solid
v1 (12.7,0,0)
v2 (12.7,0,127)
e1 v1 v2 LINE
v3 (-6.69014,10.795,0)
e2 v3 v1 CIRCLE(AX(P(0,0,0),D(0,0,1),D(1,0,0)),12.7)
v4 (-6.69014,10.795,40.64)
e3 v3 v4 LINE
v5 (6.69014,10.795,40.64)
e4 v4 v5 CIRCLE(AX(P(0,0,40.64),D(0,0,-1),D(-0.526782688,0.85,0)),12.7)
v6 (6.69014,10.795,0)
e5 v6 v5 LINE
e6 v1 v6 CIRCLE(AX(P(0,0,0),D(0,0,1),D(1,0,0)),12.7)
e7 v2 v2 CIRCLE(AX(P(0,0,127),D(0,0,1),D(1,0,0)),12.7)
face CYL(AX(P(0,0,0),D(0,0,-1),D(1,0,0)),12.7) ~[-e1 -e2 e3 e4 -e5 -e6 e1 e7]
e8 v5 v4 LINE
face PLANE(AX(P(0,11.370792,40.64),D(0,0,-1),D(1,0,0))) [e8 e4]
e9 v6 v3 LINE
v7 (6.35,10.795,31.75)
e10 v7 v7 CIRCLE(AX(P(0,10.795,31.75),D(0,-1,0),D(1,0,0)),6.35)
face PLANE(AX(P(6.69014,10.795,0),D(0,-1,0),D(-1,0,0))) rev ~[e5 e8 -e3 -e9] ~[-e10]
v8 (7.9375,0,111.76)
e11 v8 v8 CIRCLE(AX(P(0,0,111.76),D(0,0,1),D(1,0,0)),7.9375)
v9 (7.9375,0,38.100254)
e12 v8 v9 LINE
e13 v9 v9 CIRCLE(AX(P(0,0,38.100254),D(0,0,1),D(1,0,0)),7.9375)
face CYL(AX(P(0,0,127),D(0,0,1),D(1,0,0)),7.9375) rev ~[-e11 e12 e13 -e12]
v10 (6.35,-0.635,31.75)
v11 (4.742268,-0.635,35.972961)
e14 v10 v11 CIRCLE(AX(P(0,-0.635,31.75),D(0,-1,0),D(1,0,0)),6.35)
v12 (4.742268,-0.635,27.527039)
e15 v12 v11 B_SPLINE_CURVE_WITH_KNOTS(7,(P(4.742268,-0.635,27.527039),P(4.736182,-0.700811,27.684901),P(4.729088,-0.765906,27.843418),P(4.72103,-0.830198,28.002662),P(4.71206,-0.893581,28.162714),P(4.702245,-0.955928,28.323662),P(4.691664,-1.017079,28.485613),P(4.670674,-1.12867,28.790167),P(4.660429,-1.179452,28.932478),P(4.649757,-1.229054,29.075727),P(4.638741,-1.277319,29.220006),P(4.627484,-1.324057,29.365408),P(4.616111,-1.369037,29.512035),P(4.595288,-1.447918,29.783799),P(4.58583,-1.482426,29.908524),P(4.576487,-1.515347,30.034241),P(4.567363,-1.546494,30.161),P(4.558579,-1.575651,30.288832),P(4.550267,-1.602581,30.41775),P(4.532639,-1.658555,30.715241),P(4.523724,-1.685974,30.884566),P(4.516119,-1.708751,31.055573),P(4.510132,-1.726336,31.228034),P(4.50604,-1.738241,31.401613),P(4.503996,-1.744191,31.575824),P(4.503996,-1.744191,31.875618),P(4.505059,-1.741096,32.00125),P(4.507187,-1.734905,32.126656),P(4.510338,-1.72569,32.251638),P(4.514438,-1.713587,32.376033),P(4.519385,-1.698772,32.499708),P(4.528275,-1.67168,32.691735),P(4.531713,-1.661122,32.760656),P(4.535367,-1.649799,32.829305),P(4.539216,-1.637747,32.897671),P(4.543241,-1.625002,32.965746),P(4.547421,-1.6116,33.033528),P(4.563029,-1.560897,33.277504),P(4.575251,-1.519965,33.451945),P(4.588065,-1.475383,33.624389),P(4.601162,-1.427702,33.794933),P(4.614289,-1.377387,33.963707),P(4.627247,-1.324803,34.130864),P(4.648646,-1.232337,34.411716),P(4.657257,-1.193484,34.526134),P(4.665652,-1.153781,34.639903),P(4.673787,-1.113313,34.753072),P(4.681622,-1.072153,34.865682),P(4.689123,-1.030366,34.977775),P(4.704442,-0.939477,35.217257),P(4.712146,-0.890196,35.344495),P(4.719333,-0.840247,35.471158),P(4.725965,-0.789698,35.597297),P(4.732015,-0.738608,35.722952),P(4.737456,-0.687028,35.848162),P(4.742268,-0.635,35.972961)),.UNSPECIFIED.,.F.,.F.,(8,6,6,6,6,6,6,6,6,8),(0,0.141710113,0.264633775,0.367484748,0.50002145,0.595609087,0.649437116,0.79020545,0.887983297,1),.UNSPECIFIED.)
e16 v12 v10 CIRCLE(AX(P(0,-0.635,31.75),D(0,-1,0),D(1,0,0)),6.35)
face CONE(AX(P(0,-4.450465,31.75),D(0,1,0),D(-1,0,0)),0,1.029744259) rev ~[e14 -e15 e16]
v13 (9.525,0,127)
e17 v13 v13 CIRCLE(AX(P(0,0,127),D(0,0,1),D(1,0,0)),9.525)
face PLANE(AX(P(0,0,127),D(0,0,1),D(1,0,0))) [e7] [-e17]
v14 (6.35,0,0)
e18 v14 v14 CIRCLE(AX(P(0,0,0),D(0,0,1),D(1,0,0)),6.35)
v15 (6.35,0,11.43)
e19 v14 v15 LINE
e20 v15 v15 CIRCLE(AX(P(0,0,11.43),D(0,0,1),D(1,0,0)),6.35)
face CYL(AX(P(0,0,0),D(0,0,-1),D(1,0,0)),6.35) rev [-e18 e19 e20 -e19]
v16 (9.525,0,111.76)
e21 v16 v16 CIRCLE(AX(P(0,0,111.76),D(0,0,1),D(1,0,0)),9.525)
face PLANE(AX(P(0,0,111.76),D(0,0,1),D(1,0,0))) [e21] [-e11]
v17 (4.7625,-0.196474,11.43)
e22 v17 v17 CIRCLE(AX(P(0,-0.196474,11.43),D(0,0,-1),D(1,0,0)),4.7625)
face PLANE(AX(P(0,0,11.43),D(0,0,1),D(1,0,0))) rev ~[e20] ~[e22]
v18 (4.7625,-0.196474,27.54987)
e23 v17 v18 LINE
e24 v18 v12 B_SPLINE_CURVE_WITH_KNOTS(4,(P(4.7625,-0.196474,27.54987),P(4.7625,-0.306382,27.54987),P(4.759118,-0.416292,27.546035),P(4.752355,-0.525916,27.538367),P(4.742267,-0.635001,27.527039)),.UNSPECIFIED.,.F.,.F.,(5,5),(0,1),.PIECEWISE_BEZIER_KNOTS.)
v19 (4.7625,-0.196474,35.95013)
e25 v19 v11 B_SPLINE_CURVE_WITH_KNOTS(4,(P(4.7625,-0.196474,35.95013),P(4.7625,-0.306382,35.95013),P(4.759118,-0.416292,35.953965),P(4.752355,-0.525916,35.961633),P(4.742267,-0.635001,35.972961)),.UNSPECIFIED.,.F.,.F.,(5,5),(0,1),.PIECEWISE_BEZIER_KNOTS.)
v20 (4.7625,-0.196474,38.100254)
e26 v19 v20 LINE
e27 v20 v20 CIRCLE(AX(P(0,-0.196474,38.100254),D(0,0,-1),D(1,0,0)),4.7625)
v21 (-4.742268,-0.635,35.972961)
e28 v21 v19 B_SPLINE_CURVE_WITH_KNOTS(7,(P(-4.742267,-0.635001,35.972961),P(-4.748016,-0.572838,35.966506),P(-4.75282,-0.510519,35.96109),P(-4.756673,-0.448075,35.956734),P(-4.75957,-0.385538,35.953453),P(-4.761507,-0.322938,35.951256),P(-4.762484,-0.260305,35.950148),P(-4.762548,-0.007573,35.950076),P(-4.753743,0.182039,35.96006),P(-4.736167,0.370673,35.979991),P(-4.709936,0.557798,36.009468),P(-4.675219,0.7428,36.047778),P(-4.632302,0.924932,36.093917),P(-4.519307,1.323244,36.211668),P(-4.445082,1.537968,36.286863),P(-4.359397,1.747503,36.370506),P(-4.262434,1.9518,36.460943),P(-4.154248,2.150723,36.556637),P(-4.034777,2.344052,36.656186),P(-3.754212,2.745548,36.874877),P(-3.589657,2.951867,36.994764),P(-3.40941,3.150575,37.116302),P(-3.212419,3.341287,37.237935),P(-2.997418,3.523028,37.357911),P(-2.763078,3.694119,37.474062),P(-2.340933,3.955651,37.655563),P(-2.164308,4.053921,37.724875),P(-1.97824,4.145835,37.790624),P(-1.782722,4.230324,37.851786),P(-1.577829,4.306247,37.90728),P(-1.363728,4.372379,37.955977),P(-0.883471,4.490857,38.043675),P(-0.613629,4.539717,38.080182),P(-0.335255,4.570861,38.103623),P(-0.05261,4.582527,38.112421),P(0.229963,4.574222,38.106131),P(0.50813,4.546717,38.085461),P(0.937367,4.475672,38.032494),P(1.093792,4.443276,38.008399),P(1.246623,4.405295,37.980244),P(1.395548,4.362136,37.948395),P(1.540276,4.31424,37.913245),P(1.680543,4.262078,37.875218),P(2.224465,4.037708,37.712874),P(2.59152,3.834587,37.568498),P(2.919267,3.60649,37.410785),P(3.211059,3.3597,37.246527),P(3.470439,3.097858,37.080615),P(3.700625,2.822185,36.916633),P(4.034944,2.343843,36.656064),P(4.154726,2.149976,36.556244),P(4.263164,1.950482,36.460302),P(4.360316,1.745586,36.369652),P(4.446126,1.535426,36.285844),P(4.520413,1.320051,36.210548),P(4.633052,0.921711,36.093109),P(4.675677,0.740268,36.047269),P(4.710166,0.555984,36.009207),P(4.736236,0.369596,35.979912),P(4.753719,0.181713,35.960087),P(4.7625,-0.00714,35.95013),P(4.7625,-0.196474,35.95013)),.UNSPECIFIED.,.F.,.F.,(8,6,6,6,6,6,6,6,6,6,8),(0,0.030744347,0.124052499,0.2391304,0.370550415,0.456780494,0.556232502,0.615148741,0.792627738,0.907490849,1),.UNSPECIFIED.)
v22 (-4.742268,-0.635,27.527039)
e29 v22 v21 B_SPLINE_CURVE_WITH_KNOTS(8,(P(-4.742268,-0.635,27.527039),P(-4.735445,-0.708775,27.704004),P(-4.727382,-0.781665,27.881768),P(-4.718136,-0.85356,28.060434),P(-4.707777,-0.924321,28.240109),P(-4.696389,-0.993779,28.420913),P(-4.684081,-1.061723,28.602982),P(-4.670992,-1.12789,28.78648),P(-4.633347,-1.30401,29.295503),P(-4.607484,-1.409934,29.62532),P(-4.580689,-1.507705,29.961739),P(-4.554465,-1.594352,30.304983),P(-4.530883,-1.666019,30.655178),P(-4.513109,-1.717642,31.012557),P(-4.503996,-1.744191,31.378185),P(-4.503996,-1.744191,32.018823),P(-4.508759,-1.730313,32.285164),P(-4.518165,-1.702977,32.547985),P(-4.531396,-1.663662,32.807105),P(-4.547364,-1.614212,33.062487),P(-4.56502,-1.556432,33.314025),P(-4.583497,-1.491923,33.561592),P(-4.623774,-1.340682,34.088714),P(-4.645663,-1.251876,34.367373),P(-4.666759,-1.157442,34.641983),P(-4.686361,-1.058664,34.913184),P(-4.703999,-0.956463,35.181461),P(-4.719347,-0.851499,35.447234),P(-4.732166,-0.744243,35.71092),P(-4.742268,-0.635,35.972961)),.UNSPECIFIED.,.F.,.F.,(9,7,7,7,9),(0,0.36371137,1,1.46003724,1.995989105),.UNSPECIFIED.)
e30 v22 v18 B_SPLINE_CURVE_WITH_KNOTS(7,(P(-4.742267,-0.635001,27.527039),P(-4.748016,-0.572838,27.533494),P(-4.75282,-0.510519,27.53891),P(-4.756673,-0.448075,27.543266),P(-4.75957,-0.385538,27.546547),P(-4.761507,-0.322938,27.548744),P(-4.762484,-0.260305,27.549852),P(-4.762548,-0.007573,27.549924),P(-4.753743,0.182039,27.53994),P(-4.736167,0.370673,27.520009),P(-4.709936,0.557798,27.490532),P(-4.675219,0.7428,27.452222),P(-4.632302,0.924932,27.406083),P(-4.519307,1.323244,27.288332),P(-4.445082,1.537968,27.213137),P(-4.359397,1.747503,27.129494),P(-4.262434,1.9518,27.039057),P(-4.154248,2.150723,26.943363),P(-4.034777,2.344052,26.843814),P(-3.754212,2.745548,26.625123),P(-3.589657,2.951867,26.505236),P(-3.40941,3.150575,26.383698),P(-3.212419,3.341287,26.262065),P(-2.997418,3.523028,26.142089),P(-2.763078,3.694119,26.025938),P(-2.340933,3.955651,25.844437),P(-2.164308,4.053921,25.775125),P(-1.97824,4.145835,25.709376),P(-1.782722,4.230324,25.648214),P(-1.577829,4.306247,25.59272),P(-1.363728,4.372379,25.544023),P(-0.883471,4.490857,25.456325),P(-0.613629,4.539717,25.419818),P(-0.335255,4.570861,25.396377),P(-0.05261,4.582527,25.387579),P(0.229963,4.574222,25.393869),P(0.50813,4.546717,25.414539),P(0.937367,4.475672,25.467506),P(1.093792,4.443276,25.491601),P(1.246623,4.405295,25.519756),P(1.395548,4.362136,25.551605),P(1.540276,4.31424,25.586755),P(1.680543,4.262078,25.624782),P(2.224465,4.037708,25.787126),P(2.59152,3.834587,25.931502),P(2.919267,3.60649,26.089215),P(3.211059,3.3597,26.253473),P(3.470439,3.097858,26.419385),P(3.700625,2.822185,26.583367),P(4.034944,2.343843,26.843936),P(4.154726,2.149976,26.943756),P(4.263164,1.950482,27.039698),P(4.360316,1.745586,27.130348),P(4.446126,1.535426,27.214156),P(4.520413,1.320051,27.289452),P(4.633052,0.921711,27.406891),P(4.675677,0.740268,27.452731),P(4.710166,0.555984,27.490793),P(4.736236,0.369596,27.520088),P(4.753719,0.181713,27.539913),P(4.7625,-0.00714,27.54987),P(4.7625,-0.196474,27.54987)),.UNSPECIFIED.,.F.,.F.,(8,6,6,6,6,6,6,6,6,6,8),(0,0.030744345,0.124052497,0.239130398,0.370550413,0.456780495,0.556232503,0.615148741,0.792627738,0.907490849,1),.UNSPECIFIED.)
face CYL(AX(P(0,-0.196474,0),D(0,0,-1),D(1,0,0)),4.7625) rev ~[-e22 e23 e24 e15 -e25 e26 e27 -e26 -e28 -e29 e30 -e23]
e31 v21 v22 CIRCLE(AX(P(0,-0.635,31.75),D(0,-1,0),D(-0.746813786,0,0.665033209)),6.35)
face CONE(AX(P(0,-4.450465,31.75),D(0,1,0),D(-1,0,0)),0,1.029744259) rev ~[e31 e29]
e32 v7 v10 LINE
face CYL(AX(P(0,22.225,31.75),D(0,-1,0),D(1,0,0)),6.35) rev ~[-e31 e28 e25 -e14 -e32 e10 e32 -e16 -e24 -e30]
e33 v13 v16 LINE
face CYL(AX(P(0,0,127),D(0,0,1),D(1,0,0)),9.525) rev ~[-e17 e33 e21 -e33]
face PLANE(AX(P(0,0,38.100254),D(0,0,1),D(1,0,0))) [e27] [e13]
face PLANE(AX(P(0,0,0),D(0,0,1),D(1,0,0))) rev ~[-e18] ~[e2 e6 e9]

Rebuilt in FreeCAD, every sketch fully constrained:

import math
import FreeCAD as App
import Part
import Sketcher
from FreeCAD import Vector
Q = App.Units.Quantity

doc = App.newDocument("Part")
params = doc.addObject("Spreadsheet::Sheet", "Params")
for row, (alias, value) in enumerate([
    ("sketch1_diameter", "1 in"),
    ("pad1_length", "5 in"),
    ("sketch2_diameter", "0.625 in"),
    ("pocket1_length", "88.899746 mm"),
    ("sketch3_radius", "0.5 in"),
    ("pocket2_length", "1.6 in"),
    ("sketch4_diameter", "0.75 in"),
    ("pocket3_length", "0.6 in"),
    ("sketch5_diameter", "0.5 in"),
    ("hole_diameter", "0.5 in"),
    ("hole_depth", "0.45 in"),
    ("sketch6_diameter", "0.375 in"),
    ("pocket4_length", "2 in"),
    ("sketch7_diameter", "0.5 in"),
    ("pocket5_length", "0.45 in"),
], start=1):
    params.set(f"A{row}", alias)
    params.set(f"B{row}", "=" + value)
    params.setAlias(f"B{row}", alias)

body = doc.addObject("PartDesign::Body", "Body")

# Sketch on XY plane
sketch1 = body.newObject("Sketcher::SketchObject", "Sketch")
sketch1.AttachmentSupport = (doc.getObject("XY_Plane"), [""])
sketch1.MapMode = "FlatFace"
sketch1.addGeometry(Part.Circle(Vector(0, 0, 0), Vector(0, 0, 1), 12.7), False)
sketch1.addConstraint(Sketcher.Constraint("Coincident", 0, 3, -1, 1))
sketch1.addConstraint(Sketcher.Constraint("Diameter", 0, Q("1 in")))
sketch1.setExpression("Constraints[1]", "Params.sketch1_diameter")
pad1 = body.newObject("PartDesign::Pad", "Pad")
pad1.Profile = sketch1
pad1.setExpression("Length", "Params.pad1_length")

# Sketch on XY plane
sketch2 = body.newObject("Sketcher::SketchObject", "Sketch001")
sketch2.AttachmentSupport = (doc.getObject("XY_Plane"), [""])
sketch2.MapMode = "FlatFace"
sketch2.AttachmentOffset = App.Placement(Vector(0, 0, 5 * 25.4), App.Rotation())
sketch2.addGeometry(Part.Circle(Vector(0, 0, 0), Vector(0, 0, 1), 7.9375), False)
sketch2.addConstraint(Sketcher.Constraint("Coincident", 0, 3, -1, 1))
sketch2.addConstraint(Sketcher.Constraint("Diameter", 0, Q("0.625 in")))
sketch2.setExpression("Constraints[1]", "Params.sketch2_diameter")
pocket1 = body.newObject("PartDesign::Pocket", "Pocket")
pocket1.Profile = sketch2
pocket1.setExpression("Length", "Params.pocket1_length")

# Sketch on XY plane
sketch3 = body.newObject("Sketcher::SketchObject", "Sketch002")
sketch3.AttachmentSupport = (doc.getObject("XY_Plane"), [""])
sketch3.MapMode = "FlatFace"
sketch3.addGeometry(Part.LineSegment(Vector(6.69014, 10.795, 0), Vector(-6.69014, 10.795, 0)), False)
sketch3.addGeometry(Part.ArcOfCircle(Part.Circle(Vector(0, 0, 0), Vector(0, 0, 1), 12.7), math.radians(58.211669), math.radians(121.788331)), False)
sketch3.addConstraint(Sketcher.Constraint("Coincident", 0, 1, 1, 1))
sketch3.addConstraint(Sketcher.Constraint("Coincident", 1, 2, 0, 2))
sketch3.addConstraint(Sketcher.Constraint("Horizontal", 0))
sketch3.addConstraint(Sketcher.Constraint("Coincident", 1, 3, -1, 1))
sketch3.addConstraint(Sketcher.Constraint("Radius", 1, Q("0.5 in")))
sketch3.addConstraint(Sketcher.Constraint("DistanceY", -1, 1, 0, 1, Q("0.425 in")))
sketch3.setExpression("Constraints[4]", "Params.sketch3_radius")
pocket2 = body.newObject("PartDesign::Pocket", "Pocket001")
pocket2.Profile = sketch3
pocket2.setExpression("Length", "Params.pocket2_length")
pocket2.Reversed = True

# Sketch on XY plane
sketch4 = body.newObject("Sketcher::SketchObject", "Sketch003")
sketch4.AttachmentSupport = (doc.getObject("XY_Plane"), [""])
sketch4.MapMode = "FlatFace"
sketch4.AttachmentOffset = App.Placement(Vector(0, 0, 5 * 25.4), App.Rotation())
sketch4.addGeometry(Part.Circle(Vector(0, 0, 0), Vector(0, 0, 1), 9.525), False)
sketch4.addConstraint(Sketcher.Constraint("Coincident", 0, 3, -1, 1))
sketch4.addConstraint(Sketcher.Constraint("Diameter", 0, Q("0.75 in")))
sketch4.setExpression("Constraints[1]", "Params.sketch4_diameter")
pocket3 = body.newObject("PartDesign::Pocket", "Pocket002")
pocket3.Profile = sketch4
pocket3.setExpression("Length", "Params.pocket3_length")

# Sketch on XZ plane
sketch5 = body.newObject("Sketcher::SketchObject", "Sketch004")
sketch5.AttachmentSupport = (doc.getObject("XZ_Plane"), [""])
sketch5.MapMode = "FlatFace"
sketch5.AttachmentOffset = App.Placement(Vector(0, 0, -0.425 * 25.4), App.Rotation())
sketch5.addGeometry(Part.Circle(Vector(0, 31.75, 0), Vector(0, 0, 1), 6.35), False)
sketch5.addConstraint(Sketcher.Constraint("PointOnObject", 0, 3, -2))
sketch5.addConstraint(Sketcher.Constraint("Diameter", 0, Q("0.5 in")))
sketch5.addConstraint(Sketcher.Constraint("DistanceY", -1, 1, 0, 3, Q("1.25 in")))
sketch5.setExpression("Constraints[1]", "Params.sketch5_diameter")
doc.recompute()
hole = body.newObject("PartDesign::Hole", "Hole")
hole.Profile = sketch5
hole.ThreadType = "None"
hole.setExpression("Diameter", "Params.hole_diameter")
hole.DepthType = "Dimension"
hole.setExpression("Depth", "Params.hole_depth")
hole.DrillPoint = "Angled"
hole.DrillPointAngle = 118
hole.Reversed = True

# Sketch on XY plane
sketch6 = body.newObject("Sketcher::SketchObject", "Sketch005")
sketch6.AttachmentSupport = (doc.getObject("XY_Plane"), [""])
sketch6.MapMode = "FlatFace"
sketch6.addGeometry(Part.Circle(Vector(0, -0.196474, 0), Vector(0, 0, 1), 4.7625), False)
sketch6.addConstraint(Sketcher.Constraint("PointOnObject", 0, 3, -2))
sketch6.addConstraint(Sketcher.Constraint("Diameter", 0, Q("0.375 in")))
sketch6.addConstraint(Sketcher.Constraint("DistanceY", 0, 3, -1, 1, Q("0.196474 mm")))
sketch6.setExpression("Constraints[1]", "Params.sketch6_diameter")
pocket4 = body.newObject("PartDesign::Pocket", "Pocket003")
pocket4.Profile = sketch6
pocket4.setExpression("Length", "Params.pocket4_length")
pocket4.Reversed = True

# Sketch on XY plane
sketch7 = body.newObject("Sketcher::SketchObject", "Sketch006")
sketch7.AttachmentSupport = (doc.getObject("XY_Plane"), [""])
sketch7.MapMode = "FlatFace"
sketch7.addGeometry(Part.Circle(Vector(0, 0, 0), Vector(0, 0, 1), 6.35), False)
sketch7.addConstraint(Sketcher.Constraint("Coincident", 0, 3, -1, 1))
sketch7.addConstraint(Sketcher.Constraint("Diameter", 0, Q("0.5 in")))
sketch7.setExpression("Constraints[1]", "Params.sketch7_diameter")
pocket5 = body.newObject("PartDesign::Pocket", "Pocket004")
pocket5.Profile = sketch7
pocket5.setExpression("Length", "Params.pocket5_length")
pocket5.Reversed = True

doc.recompute()
